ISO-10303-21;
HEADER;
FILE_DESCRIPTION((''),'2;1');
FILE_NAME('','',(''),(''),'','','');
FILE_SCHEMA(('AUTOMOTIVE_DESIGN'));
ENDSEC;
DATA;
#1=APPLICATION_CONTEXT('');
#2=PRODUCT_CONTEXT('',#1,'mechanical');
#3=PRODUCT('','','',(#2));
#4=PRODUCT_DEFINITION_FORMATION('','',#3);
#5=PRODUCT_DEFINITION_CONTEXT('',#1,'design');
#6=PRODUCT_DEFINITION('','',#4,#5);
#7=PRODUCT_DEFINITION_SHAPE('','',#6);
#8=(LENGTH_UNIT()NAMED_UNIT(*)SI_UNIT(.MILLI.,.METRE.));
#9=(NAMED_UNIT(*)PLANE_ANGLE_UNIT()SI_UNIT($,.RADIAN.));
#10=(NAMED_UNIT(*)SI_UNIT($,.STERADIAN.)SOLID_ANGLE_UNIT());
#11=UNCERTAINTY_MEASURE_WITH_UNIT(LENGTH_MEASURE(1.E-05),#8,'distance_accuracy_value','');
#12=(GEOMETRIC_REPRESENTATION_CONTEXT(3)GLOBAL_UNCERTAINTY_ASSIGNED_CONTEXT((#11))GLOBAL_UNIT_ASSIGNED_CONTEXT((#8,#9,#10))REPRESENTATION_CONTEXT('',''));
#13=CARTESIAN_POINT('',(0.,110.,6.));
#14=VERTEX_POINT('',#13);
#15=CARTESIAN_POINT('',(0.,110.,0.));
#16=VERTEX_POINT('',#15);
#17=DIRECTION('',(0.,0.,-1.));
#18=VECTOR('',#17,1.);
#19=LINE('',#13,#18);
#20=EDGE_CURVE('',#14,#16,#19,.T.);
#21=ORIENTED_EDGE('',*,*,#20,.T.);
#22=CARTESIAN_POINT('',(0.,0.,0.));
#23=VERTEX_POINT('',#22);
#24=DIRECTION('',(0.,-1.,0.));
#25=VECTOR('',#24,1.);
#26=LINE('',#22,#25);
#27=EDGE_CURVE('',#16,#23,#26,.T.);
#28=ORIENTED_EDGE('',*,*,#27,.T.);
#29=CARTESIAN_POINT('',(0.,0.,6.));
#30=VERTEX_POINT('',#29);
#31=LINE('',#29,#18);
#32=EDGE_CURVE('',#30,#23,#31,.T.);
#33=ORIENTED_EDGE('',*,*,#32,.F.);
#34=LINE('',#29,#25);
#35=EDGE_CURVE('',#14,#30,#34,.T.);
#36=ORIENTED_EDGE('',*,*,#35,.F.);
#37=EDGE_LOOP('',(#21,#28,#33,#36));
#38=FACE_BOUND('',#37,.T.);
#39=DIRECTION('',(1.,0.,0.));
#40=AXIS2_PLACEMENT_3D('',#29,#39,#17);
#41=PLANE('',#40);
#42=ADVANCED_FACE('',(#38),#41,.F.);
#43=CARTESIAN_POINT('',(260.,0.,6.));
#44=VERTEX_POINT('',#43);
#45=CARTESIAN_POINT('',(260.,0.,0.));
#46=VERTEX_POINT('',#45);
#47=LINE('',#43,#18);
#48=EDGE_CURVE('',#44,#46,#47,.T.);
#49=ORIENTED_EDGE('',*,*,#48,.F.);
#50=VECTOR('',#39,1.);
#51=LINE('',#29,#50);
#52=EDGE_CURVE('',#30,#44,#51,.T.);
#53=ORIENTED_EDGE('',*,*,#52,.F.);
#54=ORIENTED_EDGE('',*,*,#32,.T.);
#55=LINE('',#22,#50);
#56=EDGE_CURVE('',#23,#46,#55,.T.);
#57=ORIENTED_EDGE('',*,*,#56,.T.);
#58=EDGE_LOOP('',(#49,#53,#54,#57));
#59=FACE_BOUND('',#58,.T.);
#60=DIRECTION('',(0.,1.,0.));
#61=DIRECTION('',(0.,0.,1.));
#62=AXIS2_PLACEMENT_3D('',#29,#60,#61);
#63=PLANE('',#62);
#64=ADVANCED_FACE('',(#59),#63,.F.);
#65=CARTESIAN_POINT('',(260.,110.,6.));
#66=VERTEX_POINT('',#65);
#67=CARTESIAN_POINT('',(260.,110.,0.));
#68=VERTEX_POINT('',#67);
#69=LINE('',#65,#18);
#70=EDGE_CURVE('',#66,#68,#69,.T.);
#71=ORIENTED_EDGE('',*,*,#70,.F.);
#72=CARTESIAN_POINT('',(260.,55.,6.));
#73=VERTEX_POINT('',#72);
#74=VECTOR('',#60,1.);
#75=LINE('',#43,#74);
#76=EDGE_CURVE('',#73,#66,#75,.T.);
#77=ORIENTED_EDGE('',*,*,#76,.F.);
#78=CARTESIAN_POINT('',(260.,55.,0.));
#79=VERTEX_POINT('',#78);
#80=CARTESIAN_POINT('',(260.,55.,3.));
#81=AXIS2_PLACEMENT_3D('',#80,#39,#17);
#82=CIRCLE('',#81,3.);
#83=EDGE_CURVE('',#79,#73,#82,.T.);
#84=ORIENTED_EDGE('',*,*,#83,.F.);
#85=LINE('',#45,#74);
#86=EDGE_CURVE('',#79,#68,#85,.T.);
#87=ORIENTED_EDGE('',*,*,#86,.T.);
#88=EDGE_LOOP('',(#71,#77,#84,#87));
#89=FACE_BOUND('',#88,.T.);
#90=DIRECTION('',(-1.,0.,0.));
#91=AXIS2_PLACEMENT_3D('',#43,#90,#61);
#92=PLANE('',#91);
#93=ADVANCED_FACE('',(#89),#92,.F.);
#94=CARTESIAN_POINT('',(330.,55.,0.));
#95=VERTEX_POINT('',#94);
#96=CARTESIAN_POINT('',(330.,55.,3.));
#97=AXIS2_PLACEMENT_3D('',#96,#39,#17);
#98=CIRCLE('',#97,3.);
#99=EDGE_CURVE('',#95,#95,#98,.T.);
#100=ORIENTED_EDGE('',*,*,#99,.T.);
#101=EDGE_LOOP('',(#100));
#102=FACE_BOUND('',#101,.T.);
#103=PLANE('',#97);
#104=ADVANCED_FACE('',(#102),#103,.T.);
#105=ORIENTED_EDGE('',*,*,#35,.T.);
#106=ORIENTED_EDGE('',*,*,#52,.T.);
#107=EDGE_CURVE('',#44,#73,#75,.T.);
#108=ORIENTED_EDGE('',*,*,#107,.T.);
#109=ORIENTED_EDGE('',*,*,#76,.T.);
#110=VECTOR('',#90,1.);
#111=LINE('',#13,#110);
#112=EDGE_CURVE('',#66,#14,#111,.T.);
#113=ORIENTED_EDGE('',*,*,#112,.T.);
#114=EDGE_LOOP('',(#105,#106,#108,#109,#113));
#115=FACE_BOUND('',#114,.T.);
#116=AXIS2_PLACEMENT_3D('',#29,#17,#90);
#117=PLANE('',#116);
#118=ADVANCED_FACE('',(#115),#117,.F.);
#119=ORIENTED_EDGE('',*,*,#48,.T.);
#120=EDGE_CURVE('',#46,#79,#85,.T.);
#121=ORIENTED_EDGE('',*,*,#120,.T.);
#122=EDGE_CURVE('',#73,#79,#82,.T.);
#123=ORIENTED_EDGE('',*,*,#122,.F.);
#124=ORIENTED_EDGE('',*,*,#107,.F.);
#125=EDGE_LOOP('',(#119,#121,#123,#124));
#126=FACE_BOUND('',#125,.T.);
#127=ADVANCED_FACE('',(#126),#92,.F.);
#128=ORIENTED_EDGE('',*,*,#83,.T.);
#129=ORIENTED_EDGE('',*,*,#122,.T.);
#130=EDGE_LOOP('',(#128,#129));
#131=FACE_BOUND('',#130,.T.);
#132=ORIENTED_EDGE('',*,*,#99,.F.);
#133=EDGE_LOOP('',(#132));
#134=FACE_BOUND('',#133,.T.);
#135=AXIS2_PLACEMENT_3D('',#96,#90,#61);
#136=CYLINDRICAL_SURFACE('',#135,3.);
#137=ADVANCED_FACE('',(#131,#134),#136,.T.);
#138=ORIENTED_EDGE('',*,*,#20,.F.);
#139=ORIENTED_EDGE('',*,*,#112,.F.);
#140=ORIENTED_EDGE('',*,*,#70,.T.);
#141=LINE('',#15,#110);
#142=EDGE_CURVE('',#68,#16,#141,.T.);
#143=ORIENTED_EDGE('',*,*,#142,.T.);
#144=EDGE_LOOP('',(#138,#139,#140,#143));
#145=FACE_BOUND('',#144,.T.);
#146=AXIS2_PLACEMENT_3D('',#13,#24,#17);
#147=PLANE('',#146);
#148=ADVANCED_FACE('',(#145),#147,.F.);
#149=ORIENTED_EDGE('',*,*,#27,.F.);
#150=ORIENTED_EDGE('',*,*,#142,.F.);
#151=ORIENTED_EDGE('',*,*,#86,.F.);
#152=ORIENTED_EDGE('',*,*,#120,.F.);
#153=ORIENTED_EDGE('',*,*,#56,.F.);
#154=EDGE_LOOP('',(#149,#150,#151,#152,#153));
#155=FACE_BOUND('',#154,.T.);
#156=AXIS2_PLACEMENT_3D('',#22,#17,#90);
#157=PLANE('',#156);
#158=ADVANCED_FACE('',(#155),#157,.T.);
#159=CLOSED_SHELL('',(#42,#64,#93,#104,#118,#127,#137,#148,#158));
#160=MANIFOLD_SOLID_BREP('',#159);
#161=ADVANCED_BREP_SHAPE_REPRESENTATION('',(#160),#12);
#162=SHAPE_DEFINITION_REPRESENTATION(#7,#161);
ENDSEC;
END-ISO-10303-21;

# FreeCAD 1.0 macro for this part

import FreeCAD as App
import Part
import Sketcher
Q = App.Units.Quantity


def add_polygon(sketch, points):
    """Adds a closed chain of lines whose ends are joined by coincident constraints."""
    first, n = sketch.GeometryCount, len(points)
    for a, b in zip(points, points[1:] + points[:1]):
        sketch.addGeometry(Part.LineSegment(App.Vector(*a, 0), App.Vector(*b, 0)), False)
    for i in range(n):
        sketch.addConstraint(Sketcher.Constraint("Coincident", first + i, 2, first + (i + 1) % n, 1))

doc = App.newDocument("Part")
body = doc.addObject("PartDesign::Body", "Body")

# Sketch on XY plane
sketch1 = doc.addObject("Sketcher::SketchObject", "Sketch")
body.addObject(sketch1)
sketch1.AttachmentSupport = (doc.XY_Plane, [""])
sketch1.MapMode = "FlatFace"
add_polygon(sketch1, [(0, 110), (0, 0), (260, 0), (260, 110)])  # lines 0-3
sketch1.addConstraint([
    Sketcher.Constraint("Vertical", 0),
    Sketcher.Constraint("Horizontal", 1),
    Sketcher.Constraint("Vertical", 2),
    Sketcher.Constraint("Horizontal", 3),
    Sketcher.Constraint("Coincident", 0, 2, -1, 1),
    Sketcher.Constraint("DistanceX", 1, 1, 1, 2, Q("260 mm")),
    Sketcher.Constraint("DistanceY", 0, 2, 0, 1, Q("110 mm")),
])
pad1 = doc.addObject("PartDesign::Pad", "Pad")
body.addObject(pad1)
pad1.Profile = sketch1
pad1.Length = 6

# Sketch on YZ plane
sketch2 = doc.addObject("Sketcher::SketchObject", "Sketch001")
body.addObject(sketch2)
sketch2.AttachmentSupport = (doc.YZ_Plane, [""])
sketch2.MapMode = "FlatFace"
sketch2.AttachmentOffset = App.Placement(App.Vector(0, 0, 260), App.Rotation())
sketch2.addGeometry(Part.Circle(App.Vector(55, 3, 0), App.Vector(0, 0, 1), 3), False)
sketch2.addConstraint([
    Sketcher.Constraint("Diameter", 0, Q("6 mm")),
    Sketcher.Constraint("DistanceX", -1, 1, 0, 3, Q("55 mm")),
    Sketcher.Constraint("DistanceY", -1, 1, 0, 3, Q("3 mm")),
])
pad2 = doc.addObject("PartDesign::Pad", "Pad001")
body.addObject(pad2)
pad2.Profile = sketch2
pad2.Length = 70

doc.recompute()
